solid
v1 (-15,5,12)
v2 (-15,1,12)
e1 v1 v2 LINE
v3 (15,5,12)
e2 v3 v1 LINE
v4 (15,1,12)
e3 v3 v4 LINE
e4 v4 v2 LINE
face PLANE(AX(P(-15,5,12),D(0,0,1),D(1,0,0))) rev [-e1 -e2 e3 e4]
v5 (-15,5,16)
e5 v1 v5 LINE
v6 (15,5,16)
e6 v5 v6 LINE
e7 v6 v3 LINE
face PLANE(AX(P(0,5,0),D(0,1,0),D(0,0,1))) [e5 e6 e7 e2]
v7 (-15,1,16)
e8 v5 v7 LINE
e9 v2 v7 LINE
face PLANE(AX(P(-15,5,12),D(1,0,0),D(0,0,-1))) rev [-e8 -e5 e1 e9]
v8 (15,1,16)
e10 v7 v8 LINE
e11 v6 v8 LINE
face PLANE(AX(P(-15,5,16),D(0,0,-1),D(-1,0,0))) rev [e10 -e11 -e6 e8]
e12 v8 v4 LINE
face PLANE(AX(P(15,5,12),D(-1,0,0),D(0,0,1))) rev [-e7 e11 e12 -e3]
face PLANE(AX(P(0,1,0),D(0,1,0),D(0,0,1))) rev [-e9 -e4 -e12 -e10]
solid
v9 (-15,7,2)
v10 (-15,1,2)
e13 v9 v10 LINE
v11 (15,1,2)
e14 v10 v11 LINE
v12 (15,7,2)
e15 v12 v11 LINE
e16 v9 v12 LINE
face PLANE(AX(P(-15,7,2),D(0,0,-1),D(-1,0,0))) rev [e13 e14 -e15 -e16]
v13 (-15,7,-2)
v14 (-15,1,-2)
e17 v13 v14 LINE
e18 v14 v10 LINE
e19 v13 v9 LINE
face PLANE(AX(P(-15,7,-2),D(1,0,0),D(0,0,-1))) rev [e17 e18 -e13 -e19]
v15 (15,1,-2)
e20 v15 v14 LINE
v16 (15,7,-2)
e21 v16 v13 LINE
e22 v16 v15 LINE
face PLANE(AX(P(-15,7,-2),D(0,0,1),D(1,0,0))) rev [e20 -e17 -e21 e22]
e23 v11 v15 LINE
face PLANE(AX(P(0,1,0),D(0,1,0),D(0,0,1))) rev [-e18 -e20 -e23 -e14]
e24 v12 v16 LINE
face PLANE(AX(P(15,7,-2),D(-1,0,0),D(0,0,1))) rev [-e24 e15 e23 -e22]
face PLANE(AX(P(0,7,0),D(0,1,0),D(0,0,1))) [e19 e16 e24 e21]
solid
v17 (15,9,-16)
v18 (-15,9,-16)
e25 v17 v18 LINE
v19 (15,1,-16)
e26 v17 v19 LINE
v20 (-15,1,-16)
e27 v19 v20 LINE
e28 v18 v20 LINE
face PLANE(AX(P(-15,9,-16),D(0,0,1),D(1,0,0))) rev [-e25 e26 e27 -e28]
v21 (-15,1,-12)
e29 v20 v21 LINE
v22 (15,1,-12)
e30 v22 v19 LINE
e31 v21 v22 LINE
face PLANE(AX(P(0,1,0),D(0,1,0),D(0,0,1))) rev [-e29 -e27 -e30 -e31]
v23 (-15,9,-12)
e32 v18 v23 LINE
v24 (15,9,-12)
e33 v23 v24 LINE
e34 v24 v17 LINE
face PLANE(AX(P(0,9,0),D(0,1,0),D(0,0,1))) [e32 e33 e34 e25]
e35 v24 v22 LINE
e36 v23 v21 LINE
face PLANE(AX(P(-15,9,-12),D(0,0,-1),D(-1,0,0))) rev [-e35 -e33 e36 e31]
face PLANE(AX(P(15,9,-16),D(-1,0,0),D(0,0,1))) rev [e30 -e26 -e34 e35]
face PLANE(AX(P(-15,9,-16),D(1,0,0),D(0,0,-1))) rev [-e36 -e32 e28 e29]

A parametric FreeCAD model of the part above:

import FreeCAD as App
import Part
import Sketcher
Q = App.Units.Quantity

doc = App.newDocument("Part")
params = doc.addObject("Spreadsheet::Sheet", "Params")
for row, (alias, value) in enumerate([
    ("sketch1_width", "30 mm"),
    ("sketch1_height", "4 mm"),
    ("pad1_length", "4 mm"),
    ("sketch2_width", "30 mm"),
    ("sketch2_height", "4 mm"),
    ("pad2_length", "6 mm"),
    ("sketch3_width", "30 mm"),
    ("sketch3_height", "4 mm"),
    ("pad3_length", "8 mm"),
], start=1):
    params.set(f"A{row}", alias)
    params.set(f"B{row}", "=" + value)
    params.setAlias(f"B{row}", alias)

body = doc.addObject("PartDesign::Body", "Body")

sketch1 = body.newObject("Sketcher::SketchObject", "Sketch")
sketch1.AttachmentSupport = (doc.getObject("XZ_Plane"), [""])
sketch1.MapMode = "FlatFace"
sketch1.AttachmentOffset = App.Placement(App.Vector(0, 0, -1), App.Rotation())
sketch1.addGeometry([
    Part.LineSegment(App.Vector(-15, 12, 0), App.Vector(-15, 16, 0)),
    Part.LineSegment(App.Vector(-15, 16, 0), App.Vector(15, 16, 0)),
    Part.LineSegment(App.Vector(15, 16, 0), App.Vector(15, 12, 0)),
    Part.LineSegment(App.Vector(15, 12, 0), App.Vector(-15, 12, 0)),
], False)
sketch1.addConstraint([
    Sketcher.Constraint("Coincident", 0, 2, 1, 1),
    Sketcher.Constraint("Coincident", 1, 2, 2, 1),
    Sketcher.Constraint("Coincident", 2, 2, 3, 1),
    Sketcher.Constraint("Coincident", 3, 2, 0, 1),
    Sketcher.Constraint("Vertical", 0),
    Sketcher.Constraint("Horizontal", 1),
    Sketcher.Constraint("Vertical", 2),
    Sketcher.Constraint("Horizontal", 3),
    Sketcher.Constraint("DistanceX", 1, 1, 1, 2, Q("30 mm")),
    Sketcher.Constraint("DistanceY", 0, 1, 0, 2, Q("4 mm")),
    Sketcher.Constraint("DistanceX", 0, 2, -1, 1, Q("15 mm")),
    Sketcher.Constraint("DistanceY", -1, 1, 0, 2, Q("16 mm")),
])
sketch1.setExpression("Constraints[8]", "Params.sketch1_width")
sketch1.setExpression("Constraints[9]", "Params.sketch1_height")
pad1 = body.newObject("PartDesign::Pad", "Pad")
pad1.Profile = sketch1
pad1.setExpression("Length", "Params.pad1_length")
pad1.Reversed = True
body2 = doc.addObject("PartDesign::Body", "Body001")

sketch2 = body2.newObject("Sketcher::SketchObject", "Sketch001")
sketch2.AttachmentSupport = (doc.getObject("XZ_Plane001"), [""])
sketch2.MapMode = "FlatFace"
sketch2.AttachmentOffset = App.Placement(App.Vector(0, 0, -1), App.Rotation())
sketch2.addGeometry([
    Part.LineSegment(App.Vector(-15, -2, 0), App.Vector(-15, 2, 0)),
    Part.LineSegment(App.Vector(-15, 2, 0), App.Vector(15, 2, 0)),
    Part.LineSegment(App.Vector(15, 2, 0), App.Vector(15, -2, 0)),
    Part.LineSegment(App.Vector(15, -2, 0), App.Vector(-15, -2, 0)),
], False)
sketch2.addConstraint([
    Sketcher.Constraint("Coincident", 0, 2, 1, 1),
    Sketcher.Constraint("Coincident", 1, 2, 2, 1),
    Sketcher.Constraint("Coincident", 2, 2, 3, 1),
    Sketcher.Constraint("Coincident", 3, 2, 0, 1),
    Sketcher.Constraint("Vertical", 0),
    Sketcher.Constraint("Horizontal", 1),
    Sketcher.Constraint("Vertical", 2),
    Sketcher.Constraint("Horizontal", 3),
    Sketcher.Constraint("Symmetric", 0, 2, 2, 2, -1, 1),
    Sketcher.Constraint("DistanceX", 1, 1, 1, 2, Q("30 mm")),
    Sketcher.Constraint("DistanceY", 0, 1, 0, 2, Q("4 mm")),
])
sketch2.setExpression("Constraints[9]", "Params.sketch2_width")
sketch2.setExpression("Constraints[10]", "Params.sketch2_height")
pad2 = body2.newObject("PartDesign::Pad", "Pad001")
pad2.Profile = sketch2
pad2.setExpression("Length", "Params.pad2_length")
pad2.Reversed = True
body3 = doc.addObject("PartDesign::Body", "Body002")

sketch3 = body3.newObject("Sketcher::SketchObject", "Sketch002")
sketch3.AttachmentSupport = (doc.getObject("XZ_Plane002"), [""])
sketch3.MapMode = "FlatFace"
sketch3.AttachmentOffset = App.Placement(App.Vector(0, 0, -1), App.Rotation())
sketch3.addGeometry([
    Part.LineSegment(App.Vector(-15, -16, 0), App.Vector(-15, -12, 0)),
    Part.LineSegment(App.Vector(-15, -12, 0), App.Vector(15, -12, 0)),
    Part.LineSegment(App.Vector(15, -12, 0), App.Vector(15, -16, 0)),
    Part.LineSegment(App.Vector(15, -16, 0), App.Vector(-15, -16, 0)),
], False)
sketch3.addConstraint([
    Sketcher.Constraint("Coincident", 0, 2, 1, 1),
    Sketcher.Constraint("Coincident", 1, 2, 2, 1),
    Sketcher.Constraint("Coincident", 2, 2, 3, 1),
    Sketcher.Constraint("Coincident", 3, 2, 0, 1),
    Sketcher.Constraint("Vertical", 0),
    Sketcher.Constraint("Horizontal", 1),
    Sketcher.Constraint("Vertical", 2),
    Sketcher.Constraint("Horizontal", 3),
    Sketcher.Constraint("DistanceX", 1, 1, 1, 2, Q("30 mm")),
    Sketcher.Constraint("DistanceY", 0, 1, 0, 2, Q("4 mm")),
    Sketcher.Constraint("DistanceX", 0, 2, -1, 1, Q("15 mm")),
    Sketcher.Constraint("DistanceY", 0, 2, -1, 1, Q("12 mm")),
])
sketch3.setExpression("Constraints[8]", "Params.sketch3_width")
sketch3.setExpression("Constraints[9]", "Params.sketch3_height")
pad3 = body3.newObject("PartDesign::Pad", "Pad002")
pad3.Profile = sketch3
pad3.setExpression("Length", "Params.pad3_length")
pad3.Reversed = True

doc.recompute()
